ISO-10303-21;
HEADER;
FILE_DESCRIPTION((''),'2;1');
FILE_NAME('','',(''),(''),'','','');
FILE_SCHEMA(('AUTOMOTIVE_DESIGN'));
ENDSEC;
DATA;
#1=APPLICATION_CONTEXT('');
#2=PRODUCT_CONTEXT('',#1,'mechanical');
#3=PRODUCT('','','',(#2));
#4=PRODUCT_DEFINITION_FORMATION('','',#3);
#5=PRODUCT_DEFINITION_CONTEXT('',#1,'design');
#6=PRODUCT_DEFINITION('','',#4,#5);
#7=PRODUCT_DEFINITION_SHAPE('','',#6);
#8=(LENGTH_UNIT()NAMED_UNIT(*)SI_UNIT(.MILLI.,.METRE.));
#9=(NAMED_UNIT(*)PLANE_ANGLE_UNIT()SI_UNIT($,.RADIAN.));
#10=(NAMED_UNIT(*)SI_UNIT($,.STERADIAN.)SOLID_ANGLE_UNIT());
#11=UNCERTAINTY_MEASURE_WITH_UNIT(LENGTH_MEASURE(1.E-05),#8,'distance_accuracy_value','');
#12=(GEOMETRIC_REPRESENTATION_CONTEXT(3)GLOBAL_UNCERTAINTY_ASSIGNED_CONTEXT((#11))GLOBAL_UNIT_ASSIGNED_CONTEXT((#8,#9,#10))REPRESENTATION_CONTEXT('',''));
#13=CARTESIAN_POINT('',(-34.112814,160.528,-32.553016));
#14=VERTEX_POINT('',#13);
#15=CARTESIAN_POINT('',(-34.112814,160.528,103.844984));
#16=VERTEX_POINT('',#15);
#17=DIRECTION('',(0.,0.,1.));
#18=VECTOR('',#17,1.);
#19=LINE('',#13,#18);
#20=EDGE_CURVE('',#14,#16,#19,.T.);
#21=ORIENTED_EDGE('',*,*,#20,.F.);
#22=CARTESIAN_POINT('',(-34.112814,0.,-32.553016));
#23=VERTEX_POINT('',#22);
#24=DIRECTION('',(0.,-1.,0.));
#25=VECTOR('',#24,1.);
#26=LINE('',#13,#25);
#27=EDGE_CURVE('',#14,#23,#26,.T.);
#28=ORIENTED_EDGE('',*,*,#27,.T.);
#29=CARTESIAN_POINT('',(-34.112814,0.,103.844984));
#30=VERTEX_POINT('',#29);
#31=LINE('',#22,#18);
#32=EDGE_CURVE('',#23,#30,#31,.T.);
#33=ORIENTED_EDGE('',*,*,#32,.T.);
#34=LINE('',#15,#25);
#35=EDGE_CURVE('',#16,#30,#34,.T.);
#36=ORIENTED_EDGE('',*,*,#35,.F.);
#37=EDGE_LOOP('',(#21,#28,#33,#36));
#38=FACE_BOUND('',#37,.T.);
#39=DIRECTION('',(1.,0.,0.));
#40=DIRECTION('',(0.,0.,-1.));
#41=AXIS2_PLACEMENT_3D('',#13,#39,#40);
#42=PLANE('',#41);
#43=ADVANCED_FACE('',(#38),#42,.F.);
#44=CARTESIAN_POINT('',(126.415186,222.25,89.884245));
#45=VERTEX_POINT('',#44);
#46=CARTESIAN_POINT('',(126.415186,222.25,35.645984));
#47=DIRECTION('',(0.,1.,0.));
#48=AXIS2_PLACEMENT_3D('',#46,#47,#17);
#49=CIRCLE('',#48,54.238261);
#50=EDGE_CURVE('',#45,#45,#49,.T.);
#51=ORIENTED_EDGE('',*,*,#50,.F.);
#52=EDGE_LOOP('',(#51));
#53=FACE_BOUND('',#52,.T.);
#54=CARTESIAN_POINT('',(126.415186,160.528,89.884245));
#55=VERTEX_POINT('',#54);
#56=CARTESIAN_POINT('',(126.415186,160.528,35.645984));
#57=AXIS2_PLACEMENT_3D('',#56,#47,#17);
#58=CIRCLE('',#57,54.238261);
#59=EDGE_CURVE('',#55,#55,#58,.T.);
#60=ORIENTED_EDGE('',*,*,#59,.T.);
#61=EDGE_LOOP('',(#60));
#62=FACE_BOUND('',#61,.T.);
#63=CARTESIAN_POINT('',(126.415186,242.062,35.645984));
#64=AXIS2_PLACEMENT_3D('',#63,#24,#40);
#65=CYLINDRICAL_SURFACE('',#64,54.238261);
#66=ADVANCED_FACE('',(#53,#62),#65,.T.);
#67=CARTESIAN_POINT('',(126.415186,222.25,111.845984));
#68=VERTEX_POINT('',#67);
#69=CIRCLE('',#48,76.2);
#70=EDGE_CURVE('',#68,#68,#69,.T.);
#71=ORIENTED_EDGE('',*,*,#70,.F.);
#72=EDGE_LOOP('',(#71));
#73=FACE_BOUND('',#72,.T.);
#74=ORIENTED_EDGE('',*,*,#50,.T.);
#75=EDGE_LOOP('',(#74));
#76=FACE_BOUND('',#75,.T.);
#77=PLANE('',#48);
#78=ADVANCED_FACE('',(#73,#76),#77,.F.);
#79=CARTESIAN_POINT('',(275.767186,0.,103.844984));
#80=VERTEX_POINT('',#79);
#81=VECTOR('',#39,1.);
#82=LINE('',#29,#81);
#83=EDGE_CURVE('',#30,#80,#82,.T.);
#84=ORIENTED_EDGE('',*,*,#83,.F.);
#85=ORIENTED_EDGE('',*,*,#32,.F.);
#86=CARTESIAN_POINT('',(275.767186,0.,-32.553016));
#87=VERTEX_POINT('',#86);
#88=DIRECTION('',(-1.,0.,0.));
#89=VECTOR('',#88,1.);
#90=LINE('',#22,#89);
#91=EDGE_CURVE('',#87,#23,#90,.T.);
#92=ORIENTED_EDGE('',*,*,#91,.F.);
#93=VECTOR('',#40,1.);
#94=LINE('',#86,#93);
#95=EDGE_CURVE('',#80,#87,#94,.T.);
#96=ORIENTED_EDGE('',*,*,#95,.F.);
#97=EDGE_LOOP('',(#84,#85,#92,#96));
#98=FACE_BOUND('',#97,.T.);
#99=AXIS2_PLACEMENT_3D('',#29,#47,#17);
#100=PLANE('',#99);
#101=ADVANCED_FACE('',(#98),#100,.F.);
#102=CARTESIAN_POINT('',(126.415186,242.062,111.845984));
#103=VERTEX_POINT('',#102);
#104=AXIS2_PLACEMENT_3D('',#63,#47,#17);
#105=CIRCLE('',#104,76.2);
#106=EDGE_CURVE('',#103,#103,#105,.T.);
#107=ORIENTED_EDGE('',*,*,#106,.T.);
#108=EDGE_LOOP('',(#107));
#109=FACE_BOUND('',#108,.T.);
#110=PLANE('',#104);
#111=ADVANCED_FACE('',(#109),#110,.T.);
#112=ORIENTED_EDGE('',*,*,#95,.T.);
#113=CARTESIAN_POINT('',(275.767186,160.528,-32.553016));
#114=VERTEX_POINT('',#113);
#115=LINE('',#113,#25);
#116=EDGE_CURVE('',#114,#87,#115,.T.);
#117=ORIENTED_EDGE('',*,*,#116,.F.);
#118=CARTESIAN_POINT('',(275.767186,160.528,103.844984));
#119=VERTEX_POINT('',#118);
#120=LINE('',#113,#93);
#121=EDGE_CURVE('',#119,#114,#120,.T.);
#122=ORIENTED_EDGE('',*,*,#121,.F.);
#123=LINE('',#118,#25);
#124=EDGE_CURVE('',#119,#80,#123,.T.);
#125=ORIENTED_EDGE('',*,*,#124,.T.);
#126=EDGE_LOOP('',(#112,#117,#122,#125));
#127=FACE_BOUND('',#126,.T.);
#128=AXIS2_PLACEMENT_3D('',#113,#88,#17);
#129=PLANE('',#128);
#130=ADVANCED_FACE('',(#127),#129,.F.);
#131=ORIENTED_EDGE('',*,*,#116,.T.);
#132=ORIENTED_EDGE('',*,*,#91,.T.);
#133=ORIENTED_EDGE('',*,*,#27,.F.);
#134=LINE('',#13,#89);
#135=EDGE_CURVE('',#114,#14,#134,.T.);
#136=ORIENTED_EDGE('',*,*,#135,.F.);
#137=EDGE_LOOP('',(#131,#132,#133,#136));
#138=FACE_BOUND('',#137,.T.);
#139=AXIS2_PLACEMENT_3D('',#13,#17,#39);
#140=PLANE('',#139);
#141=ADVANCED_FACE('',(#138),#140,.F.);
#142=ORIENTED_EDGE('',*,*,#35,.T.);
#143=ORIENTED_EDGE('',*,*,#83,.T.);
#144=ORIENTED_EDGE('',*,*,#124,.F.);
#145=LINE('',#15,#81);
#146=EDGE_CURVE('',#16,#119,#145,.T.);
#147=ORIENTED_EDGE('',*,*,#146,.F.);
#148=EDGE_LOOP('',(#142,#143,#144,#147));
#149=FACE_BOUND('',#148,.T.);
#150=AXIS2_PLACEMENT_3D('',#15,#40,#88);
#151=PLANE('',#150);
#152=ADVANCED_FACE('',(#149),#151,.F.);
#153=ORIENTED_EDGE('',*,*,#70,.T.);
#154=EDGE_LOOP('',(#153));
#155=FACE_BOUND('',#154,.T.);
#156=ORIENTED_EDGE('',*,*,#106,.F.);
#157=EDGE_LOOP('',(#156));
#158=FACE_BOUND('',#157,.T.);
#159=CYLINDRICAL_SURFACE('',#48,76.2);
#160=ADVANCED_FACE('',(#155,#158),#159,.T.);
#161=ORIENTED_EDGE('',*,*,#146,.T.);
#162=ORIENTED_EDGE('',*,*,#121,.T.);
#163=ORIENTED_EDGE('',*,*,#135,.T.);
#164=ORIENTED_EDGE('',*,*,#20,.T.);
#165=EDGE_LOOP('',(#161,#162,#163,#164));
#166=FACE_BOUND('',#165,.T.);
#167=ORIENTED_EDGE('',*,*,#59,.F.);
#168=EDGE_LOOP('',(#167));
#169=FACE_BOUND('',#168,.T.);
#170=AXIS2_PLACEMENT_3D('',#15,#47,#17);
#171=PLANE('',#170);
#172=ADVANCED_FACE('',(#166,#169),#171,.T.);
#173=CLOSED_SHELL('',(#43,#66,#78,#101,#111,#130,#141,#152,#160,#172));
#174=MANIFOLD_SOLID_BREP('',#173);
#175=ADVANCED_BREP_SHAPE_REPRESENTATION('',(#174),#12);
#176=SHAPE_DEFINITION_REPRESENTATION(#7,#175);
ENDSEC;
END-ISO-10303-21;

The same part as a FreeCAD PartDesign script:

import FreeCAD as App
import Part
import Sketcher
Q = App.Units.Quantity

doc = App.newDocument("Part")
body = doc.addObject("PartDesign::Body", "Body")

sketch1 = body.newObject("Sketcher::SketchObject", "Sketch")
sketch1.AttachmentSupport = (doc.getObject("XZ_Plane"), [""])
sketch1.MapMode = "FlatFace"
sketch1.addGeometry(Part.LineSegment(App.Vector(-34, -33, 0), App.Vector(-34, 104, 0)), False)
sketch1.addGeometry(Part.LineSegment(App.Vector(-34, 104, 0), App.Vector(276, 104, 0)), False)
sketch1.addGeometry(Part.LineSegment(App.Vector(276, 104, 0), App.Vector(276, -33, 0)), False)
sketch1.addGeometry(Part.LineSegment(App.Vector(276, -33, 0), App.Vector(-34, -33, 0)), False)
sketch1.addConstraint(Sketcher.Constraint("Coincident", 0, 2, 1, 1))
sketch1.addConstraint(Sketcher.Constraint("Coincident", 1, 2, 2, 1))
sketch1.addConstraint(Sketcher.Constraint("Coincident", 2, 2, 3, 1))
sketch1.addConstraint(Sketcher.Constraint("Coincident", 3, 2, 0, 1))
sketch1.addConstraint(Sketcher.Constraint("Vertical", 0))
sketch1.addConstraint(Sketcher.Constraint("Horizontal", 1))
sketch1.addConstraint(Sketcher.Constraint("Vertical", 2))
sketch1.addConstraint(Sketcher.Constraint("Horizontal", 3))
sketch1.addConstraint(Sketcher.Constraint("DistanceX", 1, 1, 1, 2, Q("12.2 in")))
sketch1.addConstraint(Sketcher.Constraint("DistanceY", 0, 1, 0, 2, Q("5.37 in")))
sketch1.addConstraint(Sketcher.Constraint("DistanceX", 0, 2, -1, 1, 34.112814))
sketch1.addConstraint(Sketcher.Constraint("DistanceY", -1, 1, 0, 2, 103.844984))
pad1 = body.newObject("PartDesign::Pad", "Pad")
pad1.Profile = sketch1
pad1.Length = Q("6.32 in")
pad1.Reversed = True

sketch2 = body.newObject("Sketcher::SketchObject", "Sketch001")
sketch2.AttachmentSupport = (doc.getObject("XZ_Plane"), [""])
sketch2.MapMode = "FlatFace"
sketch2.AttachmentOffset = App.Placement(App.Vector(0, 0, -6.32 * 25.4), App.Rotation())
sketch2.addGeometry(Part.Circle(App.Vector(126, 36, 0), App.Vector(0, 0, 1), 54), False)
sketch2.addConstraint(Sketcher.Constraint("Diameter", 0, 108.476521))
sketch2.addConstraint(Sketcher.Constraint("DistanceX", -1, 1, 0, 3, 126.415186))
sketch2.addConstraint(Sketcher.Constraint("DistanceY", -1, 1, 0, 3, 35.645984))
pad2 = body.newObject("PartDesign::Pad", "Pad001")
pad2.Profile = sketch2
pad2.Length = Q("3.21 in")
pad2.Reversed = True

sketch3 = body.newObject("Sketcher::SketchObject", "Sketch002")
sketch3.AttachmentSupport = (doc.getObject("XZ_Plane"), [""])
sketch3.MapMode = "FlatFace"
sketch3.AttachmentOffset = App.Placement(App.Vector(0, 0, -9.53 * 25.4), App.Rotation())
sketch3.addGeometry(Part.Circle(App.Vector(126, 36, 0), App.Vector(0, 0, 1), 76), False)
sketch3.addConstraint(Sketcher.Constraint("Diameter", 0, Q("6 in")))
sketch3.addConstraint(Sketcher.Constraint("DistanceX", -1, 1, 0, 3, 126.415186))
sketch3.addConstraint(Sketcher.Constraint("DistanceY", -1, 1, 0, 3, 35.645984))
pad3 = body.newObject("PartDesign::Pad", "Pad002")
pad3.Profile = sketch3
pad3.Length = Q("0.78 in")

doc.recompute()
